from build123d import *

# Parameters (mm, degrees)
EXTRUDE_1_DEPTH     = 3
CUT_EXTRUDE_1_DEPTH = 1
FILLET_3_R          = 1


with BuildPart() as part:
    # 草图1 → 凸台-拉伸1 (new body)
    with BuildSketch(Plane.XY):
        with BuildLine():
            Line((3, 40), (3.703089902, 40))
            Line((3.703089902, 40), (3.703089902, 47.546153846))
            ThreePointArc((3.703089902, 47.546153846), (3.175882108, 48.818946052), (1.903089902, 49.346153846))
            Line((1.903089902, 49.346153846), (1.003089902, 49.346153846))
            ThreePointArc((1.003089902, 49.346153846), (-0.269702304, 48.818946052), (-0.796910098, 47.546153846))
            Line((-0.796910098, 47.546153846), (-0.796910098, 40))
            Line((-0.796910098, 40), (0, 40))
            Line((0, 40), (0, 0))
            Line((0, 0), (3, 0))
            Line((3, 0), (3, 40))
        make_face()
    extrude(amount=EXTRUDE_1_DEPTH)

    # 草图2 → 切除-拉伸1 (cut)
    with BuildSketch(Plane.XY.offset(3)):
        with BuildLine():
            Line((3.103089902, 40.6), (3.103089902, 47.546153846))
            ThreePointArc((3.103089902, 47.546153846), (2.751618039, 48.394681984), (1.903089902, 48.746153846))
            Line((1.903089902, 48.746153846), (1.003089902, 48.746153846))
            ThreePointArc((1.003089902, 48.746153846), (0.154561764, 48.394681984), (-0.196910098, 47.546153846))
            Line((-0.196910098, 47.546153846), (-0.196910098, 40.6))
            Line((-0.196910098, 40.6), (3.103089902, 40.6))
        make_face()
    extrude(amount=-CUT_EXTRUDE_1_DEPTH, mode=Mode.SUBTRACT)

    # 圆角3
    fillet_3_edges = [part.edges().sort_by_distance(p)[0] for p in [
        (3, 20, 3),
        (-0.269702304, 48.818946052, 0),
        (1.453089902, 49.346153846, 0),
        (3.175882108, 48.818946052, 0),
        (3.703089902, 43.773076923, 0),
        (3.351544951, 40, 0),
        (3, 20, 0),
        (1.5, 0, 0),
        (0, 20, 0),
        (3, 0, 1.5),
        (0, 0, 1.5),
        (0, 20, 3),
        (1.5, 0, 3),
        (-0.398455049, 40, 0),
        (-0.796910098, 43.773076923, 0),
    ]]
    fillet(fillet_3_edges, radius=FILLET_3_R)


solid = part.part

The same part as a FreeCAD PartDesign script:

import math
import FreeCAD as App
import Part
import Sketcher
from FreeCAD import Vector


def edges_at(feature, points):
    """Names of the edges that pass closest to the given points."""
    edges = feature.Shape.Edges
    near = lambda p: min(range(len(edges)), key=lambda i: edges[i].distToShape(Part.Vertex(*p))[0])
    return sorted({f"Edge{near(p) + 1}" for p in points})

doc = App.newDocument("Part")
body = doc.addObject("PartDesign::Body", "Body")

sketch1 = body.newObject("Sketcher::SketchObject", "Sketch")
sketch1.AttachmentSupport = (doc.getObject("XY_Plane"), [""])
sketch1.MapMode = "FlatFace"
sketch1.addGeometry(Part.LineSegment(Vector(3, 40, 0), Vector(3.70309, 40, 0)), False)
sketch1.addGeometry(Part.LineSegment(Vector(3.70309, 40, 0), Vector(3.70309, 47.546154, 0)), False)
sketch1.addGeometry(Part.ArcOfCircle(Part.Circle(Vector(1.90309, 47.546154, 0), Vector(0, 0, 1), 1.8), math.radians(0), math.radians(90)), False)
sketch1.addGeometry(Part.LineSegment(Vector(1.90309, 49.346154, 0), Vector(1.00309, 49.346154, 0)), False)
sketch1.addGeometry(Part.ArcOfCircle(Part.Circle(Vector(1.00309, 47.546154, 0), Vector(0, 0, 1), 1.8), math.radians(90), math.radians(180)), False)
sketch1.addGeometry(Part.LineSegment(Vector(-0.79691, 47.546154, 0), Vector(-0.79691, 40, 0)), False)
sketch1.addGeometry(Part.LineSegment(Vector(-0.79691, 40, 0), Vector(0, 40, 0)), False)
sketch1.addGeometry(Part.LineSegment(Vector(0, 40, 0), Vector(0, 0, 0)), False)
sketch1.addGeometry(Part.LineSegment(Vector(0, 0, 0), Vector(3, 0, 0)), False)
sketch1.addGeometry(Part.LineSegment(Vector(3, 0, 0), Vector(3, 40, 0)), False)
sketch1.addConstraint(Sketcher.Constraint("Coincident", 0, 2, 1, 1))
sketch1.addConstraint(Sketcher.Constraint("Tangent", 1, 2, 2, 1))
sketch1.addConstraint(Sketcher.Constraint("Tangent", 2, 2, 3, 1))
sketch1.addConstraint(Sketcher.Constraint("Tangent", 3, 2, 4, 1))
sketch1.addConstraint(Sketcher.Constraint("Tangent", 4, 2, 5, 1))
sketch1.addConstraint(Sketcher.Constraint("Coincident", 5, 2, 6, 1))
sketch1.addConstraint(Sketcher.Constraint("Coincident", 6, 2, 7, 1))
sketch1.addConstraint(Sketcher.Constraint("Coincident", 7, 2, 8, 1))
sketch1.addConstraint(Sketcher.Constraint("Coincident", 8, 2, 9, 1))
sketch1.addConstraint(Sketcher.Constraint("Coincident", 9, 2, 0, 1))
sketch1.addConstraint(Sketcher.Constraint("Horizontal", 0))
sketch1.addConstraint(Sketcher.Constraint("Vertical", 1))
sketch1.addConstraint(Sketcher.Constraint("Horizontal", 3))
sketch1.addConstraint(Sketcher.Constraint("Vertical", 5))
sketch1.addConstraint(Sketcher.Constraint("Horizontal", 6))
sketch1.addConstraint(Sketcher.Constraint("Vertical", 7))
sketch1.addConstraint(Sketcher.Constraint("Horizontal", 8))
sketch1.addConstraint(Sketcher.Constraint("Vertical", 9))
sketch1.addConstraint(Sketcher.Constraint("Coincident", 7, 2, -1, 1))
sketch1.addConstraint(Sketcher.Constraint("Equal", 2, 4))
sketch1.addConstraint(Sketcher.Constraint("Horizontal", 0, 2, 5, 2))
sketch1.addConstraint(Sketcher.Constraint("Radius", 2, 1.8))
sketch1.addConstraint(Sketcher.Constraint("DistanceX", 8, 1, 8, 2, 3.0))
sketch1.addConstraint(Sketcher.Constraint("DistanceY", 7, 2, 7, 1, 40.0))
sketch1.addConstraint(Sketcher.Constraint("DistanceX", 3, 2, 3, 1, 0.9))
sketch1.addConstraint(Sketcher.Constraint("DistanceX", 0, 1, 0, 2, 0.70309))
sketch1.addConstraint(Sketcher.Constraint("DistanceY", 1, 1, 1, 2, 7.546154))
pad1 = body.newObject("PartDesign::Pad", "Pad")
pad1.Profile = sketch1
pad1.Length = 3

sketch2 = body.newObject("Sketcher::SketchObject", "Sketch001")
sketch2.AttachmentSupport = (doc.getObject("XY_Plane"), [""])
sketch2.MapMode = "FlatFace"
sketch2.AttachmentOffset = App.Placement(Vector(0, 0, 3), App.Rotation())
sketch2.addGeometry(Part.LineSegment(Vector(3.10309, 40.6, 0), Vector(3.10309, 47.546154, 0)), False)
sketch2.addGeometry(Part.ArcOfCircle(Part.Circle(Vector(1.90309, 47.546154, 0), Vector(0, 0, 1), 1.2), math.radians(0), math.radians(90)), False)
sketch2.addGeometry(Part.LineSegment(Vector(1.90309, 48.746154, 0), Vector(1.00309, 48.746154, 0)), False)
sketch2.addGeometry(Part.ArcOfCircle(Part.Circle(Vector(1.00309, 47.546154, 0), Vector(0, 0, 1), 1.2), math.radians(90), math.radians(180)), False)
sketch2.addGeometry(Part.LineSegment(Vector(-0.19691, 47.546154, 0), Vector(-0.19691, 40.6, 0)), False)
sketch2.addGeometry(Part.LineSegment(Vector(-0.19691, 40.6, 0), Vector(3.10309, 40.6, 0)), False)
sketch2.addConstraint(Sketcher.Constraint("Tangent", 0, 2, 1, 1))
sketch2.addConstraint(Sketcher.Constraint("Tangent", 1, 2, 2, 1))
sketch2.addConstraint(Sketcher.Constraint("Tangent", 2, 2, 3, 1))
sketch2.addConstraint(Sketcher.Constraint("Tangent", 3, 2, 4, 1))
sketch2.addConstraint(Sketcher.Constraint("Coincident", 4, 2, 5, 1))
sketch2.addConstraint(Sketcher.Constraint("Coincident", 5, 2, 0, 1))
sketch2.addConstraint(Sketcher.Constraint("Vertical", 0))
sketch2.addConstraint(Sketcher.Constraint("Horizontal", 2))
sketch2.addConstraint(Sketcher.Constraint("Vertical", 4))
sketch2.addConstraint(Sketcher.Constraint("Horizontal", 5))
sketch2.addConstraint(Sketcher.Constraint("Equal", 1, 3))
sketch2.addConstraint(Sketcher.Constraint("Radius", 1, 1.2))
sketch2.addConstraint(Sketcher.Constraint("DistanceX", 2, 2, 2, 1, 0.9))
sketch2.addConstraint(Sketcher.Constraint("DistanceY", -1, 1, 4, 2, 40.6))
sketch2.addConstraint(Sketcher.Constraint("DistanceY", 0, 1, 0, 2, 6.946154))
sketch2.addConstraint(Sketcher.Constraint("DistanceX", -1, 1, 1, 3, 1.90309))
pocket1 = body.newObject("PartDesign::Pocket", "Pocket")
pocket1.Profile = sketch2
pocket1.Length = 1
doc.recompute()

fillet = body.newObject("PartDesign::Fillet", "Fillet")
fillet.Base = (pocket1, edges_at(pocket1, [
    (3, 20, 3),
    (-0.27, 48.819, 0),
    (1.453, 49.346, 0),
    (3.176, 48.819, 0),
    (3.703, 43.773, 0),
    (3.352, 40, 0),
    (3, 20, 0),
    (1.5, 0, 0),
    (0, 20, 0),
    (3, 0, 1.5),
    (0, 0, 1.5),
    (0, 20, 3),
    (1.5, 0, 3),
    (-0.398, 40, 0),
    (-0.797, 43.773, 0),
]))
fillet.Radius = 1

doc.recompute()
